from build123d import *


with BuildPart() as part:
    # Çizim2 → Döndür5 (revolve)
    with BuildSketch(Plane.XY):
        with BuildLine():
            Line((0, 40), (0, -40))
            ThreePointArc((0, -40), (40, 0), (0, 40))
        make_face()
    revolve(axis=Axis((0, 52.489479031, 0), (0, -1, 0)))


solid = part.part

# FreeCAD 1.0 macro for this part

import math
import FreeCAD as App
import Part
import Sketcher
from FreeCAD import Vector
Q = App.Units.Quantity

doc = App.newDocument("Part")
body = doc.addObject("PartDesign::Body", "Body")

# Sketch on XY plane
sketch1 = body.newObject("Sketcher::SketchObject", "Sketch")
sketch1.AttachmentSupport = (doc.getObject("XY_Plane"), [""])
sketch1.MapMode = "FlatFace"
sketch1.addGeometry(Part.LineSegment(Vector(0, 40, 0), Vector(0, -40, 0)), False)
sketch1.addGeometry(Part.ArcOfCircle(Part.Circle(Vector(0, 0, 0), Vector(0, 0, 1), 40), math.radians(-90), math.radians(90)), False)
sketch1.addConstraint(Sketcher.Constraint("Coincident", 0, 1, 1, 2))
sketch1.addConstraint(Sketcher.Constraint("Coincident", 1, 1, 0, 2))
sketch1.addConstraint(Sketcher.Constraint("Vertical", 0))
sketch1.addConstraint(Sketcher.Constraint("Coincident", 1, 3, -1, 1))
sketch1.addConstraint(Sketcher.Constraint("PointOnObject", 0, 1, -2))
sketch1.addConstraint(Sketcher.Constraint("Radius", 1, Q("40 mm")))
revolution = body.newObject("PartDesign::Revolution", "Revolution")
revolution.Profile = sketch1
revolution.ReferenceAxis = (sketch1, ["V_Axis"])
revolution.Angle = 360

doc.recompute()
